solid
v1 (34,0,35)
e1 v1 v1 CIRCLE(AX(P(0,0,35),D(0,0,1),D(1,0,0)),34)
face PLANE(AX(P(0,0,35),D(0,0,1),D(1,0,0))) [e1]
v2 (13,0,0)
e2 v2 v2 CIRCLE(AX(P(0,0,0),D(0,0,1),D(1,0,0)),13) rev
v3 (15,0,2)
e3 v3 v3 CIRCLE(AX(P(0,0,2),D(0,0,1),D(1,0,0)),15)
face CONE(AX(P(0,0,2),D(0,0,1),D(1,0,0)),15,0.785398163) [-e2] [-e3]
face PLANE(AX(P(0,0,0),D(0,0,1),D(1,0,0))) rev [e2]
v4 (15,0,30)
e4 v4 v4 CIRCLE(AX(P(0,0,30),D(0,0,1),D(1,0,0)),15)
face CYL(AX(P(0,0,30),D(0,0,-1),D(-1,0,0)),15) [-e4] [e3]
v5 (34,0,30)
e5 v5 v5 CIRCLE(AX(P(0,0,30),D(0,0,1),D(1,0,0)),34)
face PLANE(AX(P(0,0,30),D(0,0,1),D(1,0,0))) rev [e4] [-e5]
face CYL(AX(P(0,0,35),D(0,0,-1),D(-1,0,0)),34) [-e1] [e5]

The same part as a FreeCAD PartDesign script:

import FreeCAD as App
import Part
import Sketcher
Q = App.Units.Quantity


def edges_at(feature, points):
    """Names of the edges that pass closest to the given points."""
    edges = feature.Shape.Edges
    near = lambda p: min(range(len(edges)), key=lambda i: edges[i].distToShape(Part.Vertex(*p))[0])
    return sorted({f"Edge{near(p) + 1}" for p in points})

doc = App.newDocument("Part")
body = doc.addObject("PartDesign::Body", "Body")

sketch1 = doc.addObject("Sketcher::SketchObject", "Sketch")
body.addObject(sketch1)
sketch1.AttachmentSupport = (doc.XY_Plane, [""])
sketch1.MapMode = "FlatFace"
sketch1.addGeometry(Part.Circle(App.Vector(0, 0, 0), App.Vector(0, 0, 1), 15), False)
sketch1.addConstraint([
    Sketcher.Constraint("Coincident", 0, 3, -1, 1),
    Sketcher.Constraint("Diameter", 0, Q("30 mm")),
])
pad1 = doc.addObject("PartDesign::Pad", "Pad")
body.addObject(pad1)
pad1.Profile = sketch1
pad1.Length = 30

sketch2 = doc.addObject("Sketcher::SketchObject", "Sketch001")
body.addObject(sketch2)
sketch2.AttachmentSupport = (doc.XY_Plane, [""])
sketch2.MapMode = "FlatFace"
sketch2.AttachmentOffset = App.Placement(App.Vector(0, 0, 30), App.Rotation())
sketch2.addGeometry(Part.Circle(App.Vector(0, 0, 0), App.Vector(0, 0, 1), 34), False)
sketch2.addConstraint([
    Sketcher.Constraint("Coincident", 0, 3, -1, 1),
    Sketcher.Constraint("Diameter", 0, Q("68 mm")),
])
pad2 = doc.addObject("PartDesign::Pad", "Pad001")
body.addObject(pad2)
pad2.Profile = sketch2
pad2.Length = 5
doc.recompute()

chamfer = doc.addObject("PartDesign::Chamfer", "Chamfer")
body.addObject(chamfer)
chamfer.Base = (pad2, edges_at(pad2, [(-15, 0, 0)]))
chamfer.Size = 2

doc.recompute()
